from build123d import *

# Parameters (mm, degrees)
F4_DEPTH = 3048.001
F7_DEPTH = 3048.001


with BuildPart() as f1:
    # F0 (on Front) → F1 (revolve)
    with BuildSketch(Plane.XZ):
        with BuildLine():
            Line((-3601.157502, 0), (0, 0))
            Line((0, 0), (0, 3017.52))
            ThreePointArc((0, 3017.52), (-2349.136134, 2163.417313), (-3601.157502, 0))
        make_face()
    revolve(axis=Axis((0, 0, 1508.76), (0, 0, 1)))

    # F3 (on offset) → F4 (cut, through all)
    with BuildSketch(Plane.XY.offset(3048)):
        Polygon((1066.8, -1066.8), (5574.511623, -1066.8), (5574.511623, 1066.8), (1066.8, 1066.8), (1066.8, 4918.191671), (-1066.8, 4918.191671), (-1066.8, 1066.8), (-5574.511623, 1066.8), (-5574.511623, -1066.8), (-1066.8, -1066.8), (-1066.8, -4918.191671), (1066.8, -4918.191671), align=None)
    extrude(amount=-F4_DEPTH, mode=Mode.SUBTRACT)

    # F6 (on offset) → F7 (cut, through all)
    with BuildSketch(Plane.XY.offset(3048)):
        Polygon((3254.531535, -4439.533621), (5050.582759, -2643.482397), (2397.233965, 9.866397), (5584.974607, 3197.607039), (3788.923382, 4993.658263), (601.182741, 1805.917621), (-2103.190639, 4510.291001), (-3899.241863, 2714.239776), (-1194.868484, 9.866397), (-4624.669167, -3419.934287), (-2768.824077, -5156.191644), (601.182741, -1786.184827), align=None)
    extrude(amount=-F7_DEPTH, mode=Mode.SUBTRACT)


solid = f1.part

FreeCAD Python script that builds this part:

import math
import FreeCAD as App
import Part
import Sketcher
Q = App.Units.Quantity


def add_polygon(sketch, points):
    """Adds a closed chain of lines whose ends are joined by coincident constraints."""
    first, n = sketch.GeometryCount, len(points)
    for a, b in zip(points, points[1:] + points[:1]):
        sketch.addGeometry(Part.LineSegment(App.Vector(*a, 0), App.Vector(*b, 0)), False)
    for i in range(n):
        sketch.addConstraint(Sketcher.Constraint("Coincident", first + i, 2, first + (i + 1) % n, 1))

doc = App.newDocument("Part")
params = doc.addObject("Spreadsheet::Sheet", "Params")
for row, (alias, value) in enumerate([
    ("sketch1_radius", "144 in"),
    ("sketch1_height", "118.8 in"),
    ("revolution_angle", "360 deg"),
    ("sketch2_width", "84 in"),
    ("sketch3_length", "100 in"),
], start=1):
    params.set(f"A{row}", alias)
    params.set(f"B{row}", "=" + value)
    params.setAlias(f"B{row}", alias)

body = doc.addObject("PartDesign::Body", "Body")
body.AllowCompound = True

# Sketch on XZ plane
sketch1 = doc.addObject("Sketcher::SketchObject", "Sketch")
body.addObject(sketch1)
sketch1.AttachmentSupport = (doc.XZ_Plane, [""])
sketch1.MapMode = "FlatFace"
sketch1.addGeometry(Part.LineSegment(App.Vector(-3601.157502, 0, 0), App.Vector(0, 0, 0)), False)
sketch1.addGeometry(Part.LineSegment(App.Vector(0, 0, 0), App.Vector(0, 3017.52, 0)), False)
sketch1.addGeometry(Part.ArcOfCircle(Part.Circle(App.Vector(0, -640.08, 0), App.Vector(0, 0, 1), 3657.6), math.radians(90), math.radians(169.921342)), False)
sketch1.addConstraint(Sketcher.Constraint("Coincident", 0, 2, 1, 1))
sketch1.addConstraint(Sketcher.Constraint("Coincident", 1, 2, 2, 1))
sketch1.addConstraint(Sketcher.Constraint("Coincident", 2, 2, 0, 1))
sketch1.addConstraint(Sketcher.Constraint("Horizontal", 0))
sketch1.addConstraint(Sketcher.Constraint("Vertical", 1))
sketch1.addConstraint(Sketcher.Constraint("Coincident", 0, 2, -1, 1))
sketch1.addConstraint(Sketcher.Constraint("PointOnObject", 2, 3, -2))
sketch1.addConstraint(Sketcher.Constraint("Radius", 2, Q("144 in")))
sketch1.addConstraint(Sketcher.Constraint("DistanceY", 1, 1, 1, 2, Q("118.8 in")))
sketch1.setExpression("Constraints[7]", "Params.sketch1_radius")
sketch1.setExpression("Constraints[8]", "Params.sketch1_height")
revolution = doc.addObject("PartDesign::Revolution", "Revolution")
body.addObject(revolution)
revolution.Profile = sketch1
revolution.ReferenceAxis = (sketch1, ["V_Axis"])
revolution.setExpression("Angle", "Params.revolution_angle")

# Sketch on XY plane
sketch2 = doc.addObject("Sketcher::SketchObject", "Sketch001")
body.addObject(sketch2)
sketch2.AttachmentSupport = (doc.XY_Plane, [""])
sketch2.MapMode = "FlatFace"
sketch2.AttachmentOffset = App.Placement(App.Vector(0, 0, 120 * 25.4), App.Rotation())
add_polygon(sketch2, [(1066.8, -1066.8), (5574.511623, -1066.8), (5574.511623, 1066.8), (1066.8, 1066.8), (1066.8, 4918.191671), (-1066.8, 4918.191671), (-1066.8, 1066.8), (-5574.511623, 1066.8), (-5574.511623, -1066.8), (-1066.8, -1066.8), (-1066.8, -4918.191671), (1066.8, -4918.191671)])  # lines 0-11
sketch2.addConstraint(Sketcher.Constraint("Horizontal", 0))
sketch2.addConstraint(Sketcher.Constraint("Vertical", 1))
sketch2.addConstraint(Sketcher.Constraint("Horizontal", 2))
sketch2.addConstraint(Sketcher.Constraint("Vertical", 3))
sketch2.addConstraint(Sketcher.Constraint("Horizontal", 4))
sketch2.addConstraint(Sketcher.Constraint("Vertical", 5))
sketch2.addConstraint(Sketcher.Constraint("Horizontal", 6))
sketch2.addConstraint(Sketcher.Constraint("Vertical", 7))
sketch2.addConstraint(Sketcher.Constraint("Horizontal", 8))
sketch2.addConstraint(Sketcher.Constraint("Vertical", 9))
sketch2.addConstraint(Sketcher.Constraint("Horizontal", 10))
sketch2.addConstraint(Sketcher.Constraint("Vertical", 11))
sketch2.addConstraint(Sketcher.Constraint("Symmetric", 0, 2, 6, 2, -1, 1))
sketch2.addConstraint(Sketcher.Constraint("Symmetric", 2, 2, 8, 2, -1, 1))
sketch2.addConstraint(Sketcher.Constraint("Symmetric", 4, 2, 10, 2, -1, 1))
sketch2.addConstraint(Sketcher.Constraint("Symmetric", 2, 2, 5, 2, -2))
sketch2.addConstraint(Sketcher.Constraint("Equal", 10, 1))
sketch2.addConstraint(Sketcher.Constraint("DistanceX", 4, 2, 4, 1, Q("84 in")))
sketch2.addConstraint(Sketcher.Constraint("DistanceY", 3, 1, 3, 2, Q("3851.391671 mm")))
sketch2.addConstraint(Sketcher.Constraint("DistanceX", 0, 1, 0, 2, Q("4507.711623 mm")))
sketch2.setExpression("Constraints[29]", "Params.sketch2_width")
pocket1 = doc.addObject("PartDesign::Pocket", "Pocket")
body.addObject(pocket1)
pocket1.Profile = sketch2
pocket1.Type = "ThroughAll"

# Sketch on XY plane
sketch3 = doc.addObject("Sketcher::SketchObject", "Sketch002")
body.addObject(sketch3)
sketch3.AttachmentSupport = (doc.XY_Plane, [""])
sketch3.MapMode = "FlatFace"
sketch3.AttachmentOffset = App.Placement(App.Vector(0, 0, 120 * 25.4), App.Rotation())
add_polygon(sketch3, [(3254.531535, -4439.533621), (5050.582759, -2643.482397), (2397.233965, 9.866397), (5584.974607, 3197.607039), (3788.923382, 4993.658263), (601.182741, 1805.917621), (-2103.190639, 4510.291001), (-3899.241863, 2714.239776), (-1194.868484, 9.866397), (-4624.669167, -3419.934287), (-2768.824077, -5156.191644), (601.182741, -1786.184827)])  # lines 0-11
sketch3.addConstraint(Sketcher.Constraint("Perpendicular", 0, 1))
sketch3.addConstraint(Sketcher.Constraint("Perpendicular", 1, 2))
sketch3.addConstraint(Sketcher.Constraint("Perpendicular", 2, 3))
sketch3.addConstraint(Sketcher.Constraint("Perpendicular", 3, 4))
sketch3.addConstraint(Sketcher.Constraint("Perpendicular", 4, 5))
sketch3.addConstraint(Sketcher.Constraint("Perpendicular", 5, 6))
sketch3.addConstraint(Sketcher.Constraint("Perpendicular", 6, 7))
sketch3.addConstraint(Sketcher.Constraint("Perpendicular", 7, 8))
sketch3.addConstraint(Sketcher.Constraint("Parallel", 8, 10))
sketch3.addConstraint(Sketcher.Constraint("Perpendicular", 10, 11))
sketch3.addConstraint(Sketcher.Constraint("Horizontal", 1, 2, 7, 2))
sketch3.addConstraint(Sketcher.Constraint("Vertical", 4, 2, 10, 2))
sketch3.addConstraint(Sketcher.Constraint("Equal", 0, 3))
sketch3.addConstraint(Sketcher.Constraint("Equal", 2, 4))
sketch3.addConstraint(Sketcher.Constraint("Equal", 3, 6))
sketch3.addConstraint(Sketcher.Constraint("Equal", 5, 7))
sketch3.addConstraint(Sketcher.Constraint("Distance", 0, Q("100 in")))
sketch3.addConstraint(Sketcher.Constraint("DistanceX", 1, 2, 2, 2, Q("125.5016001 in")))
sketch3.addConstraint(Sketcher.Constraint("DistanceY", -1, 1, 5, 2, Q("4510.291001 mm")))
sketch3.addConstraint(Sketcher.Constraint("Distance", 1, Q("3752.40185 mm")))
sketch3.addConstraint(Sketcher.Constraint("Distance", 5, Q("3824.561512 mm")))
sketch3.addConstraint(Sketcher.Constraint("Distance", 9, Q("2541.40721 mm")))
sketch3.addConstraint(Sketcher.Constraint("DistanceX", -1, 1, 0, 2, Q("5050.582759 mm")))
sketch3.addConstraint(Sketcher.Constraint("DistanceY", 8, 2, 4, 2, Q("5225.851908 mm")))
sketch3.setExpression("Constraints[28]", "Params.sketch3_length")
pocket2 = doc.addObject("PartDesign::Pocket", "Pocket001")
body.addObject(pocket2)
pocket2.Profile = sketch3
pocket2.Type = "ThroughAll"

doc.recompute()
